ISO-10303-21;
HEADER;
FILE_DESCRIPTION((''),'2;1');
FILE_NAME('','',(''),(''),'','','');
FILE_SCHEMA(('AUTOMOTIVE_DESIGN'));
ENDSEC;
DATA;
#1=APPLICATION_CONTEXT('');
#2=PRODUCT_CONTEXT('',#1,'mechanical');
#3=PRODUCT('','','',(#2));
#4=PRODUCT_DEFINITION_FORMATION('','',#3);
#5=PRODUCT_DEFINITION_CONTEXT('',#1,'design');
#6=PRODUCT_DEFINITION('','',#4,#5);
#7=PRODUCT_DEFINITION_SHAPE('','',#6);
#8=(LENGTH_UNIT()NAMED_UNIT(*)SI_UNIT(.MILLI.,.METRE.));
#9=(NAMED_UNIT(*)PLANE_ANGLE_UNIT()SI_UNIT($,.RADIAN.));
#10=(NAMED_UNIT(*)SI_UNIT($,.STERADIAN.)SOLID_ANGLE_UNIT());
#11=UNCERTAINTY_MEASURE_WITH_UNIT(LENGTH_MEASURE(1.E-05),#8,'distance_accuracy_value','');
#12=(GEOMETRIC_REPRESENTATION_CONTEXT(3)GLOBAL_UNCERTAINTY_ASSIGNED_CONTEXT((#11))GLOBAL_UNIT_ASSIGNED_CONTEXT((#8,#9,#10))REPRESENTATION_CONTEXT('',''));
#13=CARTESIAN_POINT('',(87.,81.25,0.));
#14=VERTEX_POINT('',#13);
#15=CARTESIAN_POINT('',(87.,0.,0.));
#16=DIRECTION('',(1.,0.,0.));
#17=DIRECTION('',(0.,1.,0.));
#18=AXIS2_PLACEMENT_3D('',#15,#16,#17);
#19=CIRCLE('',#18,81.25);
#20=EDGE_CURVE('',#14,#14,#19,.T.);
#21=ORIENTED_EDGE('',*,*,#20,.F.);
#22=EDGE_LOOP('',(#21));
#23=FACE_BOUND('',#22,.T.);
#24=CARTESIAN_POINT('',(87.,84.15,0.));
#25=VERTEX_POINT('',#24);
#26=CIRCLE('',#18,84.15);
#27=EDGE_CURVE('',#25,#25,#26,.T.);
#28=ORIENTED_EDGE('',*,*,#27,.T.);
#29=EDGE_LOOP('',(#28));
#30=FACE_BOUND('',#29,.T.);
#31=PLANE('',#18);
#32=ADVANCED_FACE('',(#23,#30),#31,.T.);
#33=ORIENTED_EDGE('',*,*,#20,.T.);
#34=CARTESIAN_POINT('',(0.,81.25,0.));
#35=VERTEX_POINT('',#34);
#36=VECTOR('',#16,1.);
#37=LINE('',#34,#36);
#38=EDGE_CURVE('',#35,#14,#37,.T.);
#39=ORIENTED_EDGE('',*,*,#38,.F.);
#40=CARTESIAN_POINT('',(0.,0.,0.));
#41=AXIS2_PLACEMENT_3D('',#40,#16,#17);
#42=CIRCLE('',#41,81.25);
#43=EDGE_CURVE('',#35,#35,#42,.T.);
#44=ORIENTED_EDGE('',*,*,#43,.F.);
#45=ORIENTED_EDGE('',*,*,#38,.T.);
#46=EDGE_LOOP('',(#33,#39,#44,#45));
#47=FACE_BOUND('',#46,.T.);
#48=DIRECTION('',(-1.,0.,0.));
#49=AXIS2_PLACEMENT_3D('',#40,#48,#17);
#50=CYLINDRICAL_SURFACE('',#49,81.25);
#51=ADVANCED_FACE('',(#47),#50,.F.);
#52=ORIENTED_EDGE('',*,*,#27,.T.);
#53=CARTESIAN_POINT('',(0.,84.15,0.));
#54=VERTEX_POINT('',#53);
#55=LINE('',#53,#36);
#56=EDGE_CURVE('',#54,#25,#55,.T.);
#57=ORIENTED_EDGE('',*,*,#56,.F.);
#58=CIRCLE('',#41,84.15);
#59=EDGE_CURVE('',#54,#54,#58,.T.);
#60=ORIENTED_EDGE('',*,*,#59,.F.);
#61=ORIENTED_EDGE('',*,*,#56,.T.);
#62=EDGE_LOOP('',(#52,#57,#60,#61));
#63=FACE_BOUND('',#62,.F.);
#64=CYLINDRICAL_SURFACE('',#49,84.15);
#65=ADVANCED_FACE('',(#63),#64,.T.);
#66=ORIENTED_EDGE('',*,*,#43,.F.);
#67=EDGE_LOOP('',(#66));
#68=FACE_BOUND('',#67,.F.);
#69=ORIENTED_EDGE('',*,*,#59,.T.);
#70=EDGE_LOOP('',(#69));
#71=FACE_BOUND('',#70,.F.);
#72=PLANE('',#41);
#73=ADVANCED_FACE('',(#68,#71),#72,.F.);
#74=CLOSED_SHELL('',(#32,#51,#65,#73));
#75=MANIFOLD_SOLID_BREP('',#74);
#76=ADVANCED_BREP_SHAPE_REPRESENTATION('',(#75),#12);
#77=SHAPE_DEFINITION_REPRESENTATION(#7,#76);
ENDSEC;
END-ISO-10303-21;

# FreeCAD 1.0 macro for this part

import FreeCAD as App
import Part
import Sketcher

doc = App.newDocument("Part")
body = doc.addObject("PartDesign::Body", "Body")

sketch1 = doc.addObject("Sketcher::SketchObject", "Sketch")
body.addObject(sketch1)
sketch1.AttachmentSupport = (doc.YZ_Plane, [""])
sketch1.MapMode = "FlatFace"
sketch1.addGeometry([
    Part.Circle(App.Vector(0, 0, 0), App.Vector(0, 0, 1), 84.15),
    Part.Circle(App.Vector(0, 0, 0), App.Vector(0, 0, 1), 81.25),
], False)
sketch1.addConstraint([
    Sketcher.Constraint("Coincident", 0, 3, -1, 1),
    Sketcher.Constraint("Coincident", 1, 3, -1, 1),
    Sketcher.Constraint("Diameter", 0, 168.3),
    Sketcher.Constraint("Diameter", 1, 162.5),
])
pad1 = doc.addObject("PartDesign::Pad", "Pad")
body.addObject(pad1)
pad1.Profile = sketch1
pad1.Length = 87

doc.recompute()
